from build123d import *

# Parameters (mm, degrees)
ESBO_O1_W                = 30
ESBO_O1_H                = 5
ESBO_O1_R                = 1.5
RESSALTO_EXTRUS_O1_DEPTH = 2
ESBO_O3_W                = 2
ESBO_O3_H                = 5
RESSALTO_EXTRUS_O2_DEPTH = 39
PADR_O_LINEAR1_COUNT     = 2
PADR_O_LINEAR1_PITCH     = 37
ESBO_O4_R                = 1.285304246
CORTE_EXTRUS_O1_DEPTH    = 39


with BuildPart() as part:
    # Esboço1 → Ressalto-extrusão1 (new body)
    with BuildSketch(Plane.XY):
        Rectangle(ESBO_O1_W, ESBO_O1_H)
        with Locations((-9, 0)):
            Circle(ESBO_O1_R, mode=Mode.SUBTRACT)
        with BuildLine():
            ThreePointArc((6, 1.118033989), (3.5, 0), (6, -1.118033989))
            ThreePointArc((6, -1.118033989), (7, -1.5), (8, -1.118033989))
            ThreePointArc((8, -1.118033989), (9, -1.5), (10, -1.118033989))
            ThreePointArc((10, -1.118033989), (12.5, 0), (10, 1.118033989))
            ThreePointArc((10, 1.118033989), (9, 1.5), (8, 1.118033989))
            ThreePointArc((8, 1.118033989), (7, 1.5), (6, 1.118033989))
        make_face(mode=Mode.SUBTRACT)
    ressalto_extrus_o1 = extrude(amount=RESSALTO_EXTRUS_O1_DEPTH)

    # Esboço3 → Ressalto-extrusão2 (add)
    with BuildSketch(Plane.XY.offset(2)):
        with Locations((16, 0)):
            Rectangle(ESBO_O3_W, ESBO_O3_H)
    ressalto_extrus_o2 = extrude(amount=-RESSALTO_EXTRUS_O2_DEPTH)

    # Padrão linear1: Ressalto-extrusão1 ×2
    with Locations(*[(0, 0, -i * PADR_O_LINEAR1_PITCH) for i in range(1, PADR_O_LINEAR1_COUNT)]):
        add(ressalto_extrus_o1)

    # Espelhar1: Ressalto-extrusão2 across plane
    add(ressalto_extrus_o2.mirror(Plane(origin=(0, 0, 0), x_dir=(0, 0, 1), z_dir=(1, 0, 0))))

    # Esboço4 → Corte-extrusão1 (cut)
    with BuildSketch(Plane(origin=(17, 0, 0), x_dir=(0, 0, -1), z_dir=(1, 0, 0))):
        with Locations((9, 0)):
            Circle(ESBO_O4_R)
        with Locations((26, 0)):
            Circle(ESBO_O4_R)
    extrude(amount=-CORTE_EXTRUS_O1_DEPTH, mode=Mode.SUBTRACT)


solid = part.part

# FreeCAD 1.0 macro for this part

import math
import FreeCAD as App
import Part
import Sketcher

V = App.Vector
Q = App.Units.Quantity


def add_polygon(sketch, points):
    """Adds a closed chain of lines whose ends are joined by coincident constraints."""
    first, n = sketch.GeometryCount, len(points)
    for a, b in zip(points, points[1:] + points[:1]):
        sketch.addGeometry(Part.LineSegment(App.Vector(*a, 0), App.Vector(*b, 0)), False)
    for i in range(n):
        sketch.addConstraint(Sketcher.Constraint("Coincident", first + i, 2, first + (i + 1) % n, 1))

doc = App.newDocument("Part")
body = doc.addObject("PartDesign::Body", "Body")

# Sketch on XY plane
sketch1 = doc.addObject("Sketcher::SketchObject", "Sketch")
body.addObject(sketch1)
sketch1.AttachmentSupport = (doc.XY_Plane, [""])
sketch1.MapMode = "FlatFace"
add_polygon(sketch1, [(-15, 2.5), (-15, -2.5), (15, -2.5), (15, 2.5)])  # lines 0-3
sketch1.addGeometry(Part.Circle(V(-9, 0, 0), V(0, 0, 1), 1.5), False)  # 4
sketch1.addGeometry(Part.ArcOfCircle(Part.Circle(V(5, 0, 0), V(0, 0, 1), 1.5), math.radians(48), math.radians(312)), False)  # 5
sketch1.addGeometry(Part.ArcOfCircle(Part.Circle(V(7, 0, 0), V(0, 0, 1), 1.5), math.radians(48), math.radians(132)), False)  # 6
sketch1.addGeometry(Part.ArcOfCircle(Part.Circle(V(9, 0, 0), V(0, 0, 1), 1.5), math.radians(48), math.radians(132)), False)  # 7
sketch1.addGeometry(Part.ArcOfCircle(Part.Circle(V(11, 0, 0), V(0, 0, 1), 1.5), math.radians(-132), math.radians(132)), False)  # 8
sketch1.addGeometry(Part.ArcOfCircle(Part.Circle(V(9, 0, 0), V(0, 0, 1), 1.5), math.radians(-132), math.radians(-48)), False)  # 9
sketch1.addGeometry(Part.ArcOfCircle(Part.Circle(V(7, 0, 0), V(0, 0, 1), 1.5), math.radians(-132), math.radians(-48)), False)  # 10
sketch1.addConstraint([
    Sketcher.Constraint("Coincident", 5, 1, 6, 2),
    Sketcher.Constraint("Coincident", 6, 1, 7, 2),
    Sketcher.Constraint("Coincident", 7, 1, 8, 2),
    Sketcher.Constraint("Coincident", 8, 1, 9, 2),
    Sketcher.Constraint("Coincident", 9, 1, 10, 2),
    Sketcher.Constraint("Coincident", 10, 1, 5, 2),
    Sketcher.Constraint("Vertical", 0),
    Sketcher.Constraint("Horizontal", 1),
    Sketcher.Constraint("Vertical", 2),
    Sketcher.Constraint("Horizontal", 3),
    Sketcher.Constraint("Coincident", 9, 3, 7, 3),
    Sketcher.Constraint("Coincident", 10, 3, 6, 3),
    Sketcher.Constraint("Equal", 4, 5),
    Sketcher.Constraint("Equal", 5, 6),
    Sketcher.Constraint("Equal", 6, 7),
    Sketcher.Constraint("Equal", 7, 8),
    Sketcher.Constraint("Equal", 8, 9),
    Sketcher.Constraint("Equal", 9, 10),
    Sketcher.Constraint("Symmetric", 4, 3, 7, 3, -1, 1),
    Sketcher.Constraint("Symmetric", 0, 2, 2, 2, -1, 1),
    Sketcher.Constraint("Symmetric", 7, 1, 8, 1, -1),
    Sketcher.Constraint("Symmetric", 5, 1, 10, 1, -1),
    Sketcher.Constraint("Horizontal", 5, 1, 6, 1),
    Sketcher.Constraint("Horizontal", 6, 1, 7, 1),
    Sketcher.Constraint("Diameter", 4, Q("3 mm")),
    Sketcher.Constraint("DistanceX", 1, 1, 1, 2, Q("30 mm")),
    Sketcher.Constraint("DistanceY", 0, 2, 0, 1, Q("5 mm")),
    Sketcher.Constraint("DistanceX", 4, 3, -1, 1, Q("9 mm")),
    Sketcher.Constraint("DistanceX", -1, 1, 5, 3, Q("5 mm")),
])
pad1 = doc.addObject("PartDesign::Pad", "Pad")
body.addObject(pad1)
pad1.Profile = sketch1
pad1.Length = 2

# Sketch on XY plane
sketch2 = doc.addObject("Sketcher::SketchObject", "Sketch001")
body.addObject(sketch2)
sketch2.AttachmentSupport = (doc.XY_Plane, [""])
sketch2.MapMode = "FlatFace"
sketch2.AttachmentOffset = App.Placement(V(0, 0, 2), App.Rotation())
add_polygon(sketch2, [(15, 2.5), (15, -2.5), (17, -2.5), (17, 2.5)])  # lines 0-3
sketch2.addConstraint([
    Sketcher.Constraint("Vertical", 0),
    Sketcher.Constraint("Horizontal", 1),
    Sketcher.Constraint("Vertical", 2),
    Sketcher.Constraint("Horizontal", 3),
    Sketcher.Constraint("DistanceX", 1, 1, 1, 2, Q("2 mm")),
    Sketcher.Constraint("DistanceY", 0, 2, 0, 1, Q("5 mm")),
    Sketcher.Constraint("DistanceX", -1, 1, 0, 2, Q("15 mm")),
    Sketcher.Constraint("DistanceY", 0, 2, -1, 1, Q("2.5 mm")),
])
pad2 = doc.addObject("PartDesign::Pad", "Pad001")
body.addObject(pad2)
pad2.Profile = sketch2
pad2.Length = 39
pad2.Reversed = True
doc.recompute()

linearpattern = doc.addObject("PartDesign::LinearPattern", "LinearPattern")
body.addObject(linearpattern)
linearpattern.Originals = [pad1]
linearpattern.Direction = (doc.Z_Axis, [""])
linearpattern.Mode = "offset"
linearpattern.Offset = 37
linearpattern.Occurrences = 2
linearpattern.Reversed = True
body.Tip = linearpattern
doc.recompute()

mirrored = doc.addObject("PartDesign::Mirrored", "Mirrored")
body.addObject(mirrored)
mirrored.Originals = [pad2]
mirrored.MirrorPlane = (doc.YZ_Plane, [""])
body.Tip = mirrored

# Sketch on YZ plane
sketch3 = doc.addObject("Sketcher::SketchObject", "Sketch002")
body.addObject(sketch3)
sketch3.AttachmentSupport = (doc.YZ_Plane, [""])
sketch3.MapMode = "FlatFace"
sketch3.AttachmentOffset = App.Placement(V(0, 0, 17), App.Rotation())
sketch3.addGeometry([
    Part.Circle(V(0, -9, 0), V(0, 0, 1), 1.3),
    Part.Circle(V(0, -26, 0), V(0, 0, 1), 1.3),
], False)
sketch3.addConstraint([
    Sketcher.Constraint("Equal", 0, 1),
    Sketcher.Constraint("PointOnObject", 0, 3, -2),
    Sketcher.Constraint("PointOnObject", 1, 3, -2),
    Sketcher.Constraint("DistanceY", 0, 3, -1, 1, Q("9 mm")),
    Sketcher.Constraint("DistanceY", 1, 3, -1, 1, Q("26 mm")),
    Sketcher.Constraint("Diameter", 0, Q("2.570608 mm")),
])
pocket1 = doc.addObject("PartDesign::Pocket", "Pocket")
body.addObject(pocket1)
pocket1.Profile = sketch3
pocket1.Length = 39

doc.recompute()
